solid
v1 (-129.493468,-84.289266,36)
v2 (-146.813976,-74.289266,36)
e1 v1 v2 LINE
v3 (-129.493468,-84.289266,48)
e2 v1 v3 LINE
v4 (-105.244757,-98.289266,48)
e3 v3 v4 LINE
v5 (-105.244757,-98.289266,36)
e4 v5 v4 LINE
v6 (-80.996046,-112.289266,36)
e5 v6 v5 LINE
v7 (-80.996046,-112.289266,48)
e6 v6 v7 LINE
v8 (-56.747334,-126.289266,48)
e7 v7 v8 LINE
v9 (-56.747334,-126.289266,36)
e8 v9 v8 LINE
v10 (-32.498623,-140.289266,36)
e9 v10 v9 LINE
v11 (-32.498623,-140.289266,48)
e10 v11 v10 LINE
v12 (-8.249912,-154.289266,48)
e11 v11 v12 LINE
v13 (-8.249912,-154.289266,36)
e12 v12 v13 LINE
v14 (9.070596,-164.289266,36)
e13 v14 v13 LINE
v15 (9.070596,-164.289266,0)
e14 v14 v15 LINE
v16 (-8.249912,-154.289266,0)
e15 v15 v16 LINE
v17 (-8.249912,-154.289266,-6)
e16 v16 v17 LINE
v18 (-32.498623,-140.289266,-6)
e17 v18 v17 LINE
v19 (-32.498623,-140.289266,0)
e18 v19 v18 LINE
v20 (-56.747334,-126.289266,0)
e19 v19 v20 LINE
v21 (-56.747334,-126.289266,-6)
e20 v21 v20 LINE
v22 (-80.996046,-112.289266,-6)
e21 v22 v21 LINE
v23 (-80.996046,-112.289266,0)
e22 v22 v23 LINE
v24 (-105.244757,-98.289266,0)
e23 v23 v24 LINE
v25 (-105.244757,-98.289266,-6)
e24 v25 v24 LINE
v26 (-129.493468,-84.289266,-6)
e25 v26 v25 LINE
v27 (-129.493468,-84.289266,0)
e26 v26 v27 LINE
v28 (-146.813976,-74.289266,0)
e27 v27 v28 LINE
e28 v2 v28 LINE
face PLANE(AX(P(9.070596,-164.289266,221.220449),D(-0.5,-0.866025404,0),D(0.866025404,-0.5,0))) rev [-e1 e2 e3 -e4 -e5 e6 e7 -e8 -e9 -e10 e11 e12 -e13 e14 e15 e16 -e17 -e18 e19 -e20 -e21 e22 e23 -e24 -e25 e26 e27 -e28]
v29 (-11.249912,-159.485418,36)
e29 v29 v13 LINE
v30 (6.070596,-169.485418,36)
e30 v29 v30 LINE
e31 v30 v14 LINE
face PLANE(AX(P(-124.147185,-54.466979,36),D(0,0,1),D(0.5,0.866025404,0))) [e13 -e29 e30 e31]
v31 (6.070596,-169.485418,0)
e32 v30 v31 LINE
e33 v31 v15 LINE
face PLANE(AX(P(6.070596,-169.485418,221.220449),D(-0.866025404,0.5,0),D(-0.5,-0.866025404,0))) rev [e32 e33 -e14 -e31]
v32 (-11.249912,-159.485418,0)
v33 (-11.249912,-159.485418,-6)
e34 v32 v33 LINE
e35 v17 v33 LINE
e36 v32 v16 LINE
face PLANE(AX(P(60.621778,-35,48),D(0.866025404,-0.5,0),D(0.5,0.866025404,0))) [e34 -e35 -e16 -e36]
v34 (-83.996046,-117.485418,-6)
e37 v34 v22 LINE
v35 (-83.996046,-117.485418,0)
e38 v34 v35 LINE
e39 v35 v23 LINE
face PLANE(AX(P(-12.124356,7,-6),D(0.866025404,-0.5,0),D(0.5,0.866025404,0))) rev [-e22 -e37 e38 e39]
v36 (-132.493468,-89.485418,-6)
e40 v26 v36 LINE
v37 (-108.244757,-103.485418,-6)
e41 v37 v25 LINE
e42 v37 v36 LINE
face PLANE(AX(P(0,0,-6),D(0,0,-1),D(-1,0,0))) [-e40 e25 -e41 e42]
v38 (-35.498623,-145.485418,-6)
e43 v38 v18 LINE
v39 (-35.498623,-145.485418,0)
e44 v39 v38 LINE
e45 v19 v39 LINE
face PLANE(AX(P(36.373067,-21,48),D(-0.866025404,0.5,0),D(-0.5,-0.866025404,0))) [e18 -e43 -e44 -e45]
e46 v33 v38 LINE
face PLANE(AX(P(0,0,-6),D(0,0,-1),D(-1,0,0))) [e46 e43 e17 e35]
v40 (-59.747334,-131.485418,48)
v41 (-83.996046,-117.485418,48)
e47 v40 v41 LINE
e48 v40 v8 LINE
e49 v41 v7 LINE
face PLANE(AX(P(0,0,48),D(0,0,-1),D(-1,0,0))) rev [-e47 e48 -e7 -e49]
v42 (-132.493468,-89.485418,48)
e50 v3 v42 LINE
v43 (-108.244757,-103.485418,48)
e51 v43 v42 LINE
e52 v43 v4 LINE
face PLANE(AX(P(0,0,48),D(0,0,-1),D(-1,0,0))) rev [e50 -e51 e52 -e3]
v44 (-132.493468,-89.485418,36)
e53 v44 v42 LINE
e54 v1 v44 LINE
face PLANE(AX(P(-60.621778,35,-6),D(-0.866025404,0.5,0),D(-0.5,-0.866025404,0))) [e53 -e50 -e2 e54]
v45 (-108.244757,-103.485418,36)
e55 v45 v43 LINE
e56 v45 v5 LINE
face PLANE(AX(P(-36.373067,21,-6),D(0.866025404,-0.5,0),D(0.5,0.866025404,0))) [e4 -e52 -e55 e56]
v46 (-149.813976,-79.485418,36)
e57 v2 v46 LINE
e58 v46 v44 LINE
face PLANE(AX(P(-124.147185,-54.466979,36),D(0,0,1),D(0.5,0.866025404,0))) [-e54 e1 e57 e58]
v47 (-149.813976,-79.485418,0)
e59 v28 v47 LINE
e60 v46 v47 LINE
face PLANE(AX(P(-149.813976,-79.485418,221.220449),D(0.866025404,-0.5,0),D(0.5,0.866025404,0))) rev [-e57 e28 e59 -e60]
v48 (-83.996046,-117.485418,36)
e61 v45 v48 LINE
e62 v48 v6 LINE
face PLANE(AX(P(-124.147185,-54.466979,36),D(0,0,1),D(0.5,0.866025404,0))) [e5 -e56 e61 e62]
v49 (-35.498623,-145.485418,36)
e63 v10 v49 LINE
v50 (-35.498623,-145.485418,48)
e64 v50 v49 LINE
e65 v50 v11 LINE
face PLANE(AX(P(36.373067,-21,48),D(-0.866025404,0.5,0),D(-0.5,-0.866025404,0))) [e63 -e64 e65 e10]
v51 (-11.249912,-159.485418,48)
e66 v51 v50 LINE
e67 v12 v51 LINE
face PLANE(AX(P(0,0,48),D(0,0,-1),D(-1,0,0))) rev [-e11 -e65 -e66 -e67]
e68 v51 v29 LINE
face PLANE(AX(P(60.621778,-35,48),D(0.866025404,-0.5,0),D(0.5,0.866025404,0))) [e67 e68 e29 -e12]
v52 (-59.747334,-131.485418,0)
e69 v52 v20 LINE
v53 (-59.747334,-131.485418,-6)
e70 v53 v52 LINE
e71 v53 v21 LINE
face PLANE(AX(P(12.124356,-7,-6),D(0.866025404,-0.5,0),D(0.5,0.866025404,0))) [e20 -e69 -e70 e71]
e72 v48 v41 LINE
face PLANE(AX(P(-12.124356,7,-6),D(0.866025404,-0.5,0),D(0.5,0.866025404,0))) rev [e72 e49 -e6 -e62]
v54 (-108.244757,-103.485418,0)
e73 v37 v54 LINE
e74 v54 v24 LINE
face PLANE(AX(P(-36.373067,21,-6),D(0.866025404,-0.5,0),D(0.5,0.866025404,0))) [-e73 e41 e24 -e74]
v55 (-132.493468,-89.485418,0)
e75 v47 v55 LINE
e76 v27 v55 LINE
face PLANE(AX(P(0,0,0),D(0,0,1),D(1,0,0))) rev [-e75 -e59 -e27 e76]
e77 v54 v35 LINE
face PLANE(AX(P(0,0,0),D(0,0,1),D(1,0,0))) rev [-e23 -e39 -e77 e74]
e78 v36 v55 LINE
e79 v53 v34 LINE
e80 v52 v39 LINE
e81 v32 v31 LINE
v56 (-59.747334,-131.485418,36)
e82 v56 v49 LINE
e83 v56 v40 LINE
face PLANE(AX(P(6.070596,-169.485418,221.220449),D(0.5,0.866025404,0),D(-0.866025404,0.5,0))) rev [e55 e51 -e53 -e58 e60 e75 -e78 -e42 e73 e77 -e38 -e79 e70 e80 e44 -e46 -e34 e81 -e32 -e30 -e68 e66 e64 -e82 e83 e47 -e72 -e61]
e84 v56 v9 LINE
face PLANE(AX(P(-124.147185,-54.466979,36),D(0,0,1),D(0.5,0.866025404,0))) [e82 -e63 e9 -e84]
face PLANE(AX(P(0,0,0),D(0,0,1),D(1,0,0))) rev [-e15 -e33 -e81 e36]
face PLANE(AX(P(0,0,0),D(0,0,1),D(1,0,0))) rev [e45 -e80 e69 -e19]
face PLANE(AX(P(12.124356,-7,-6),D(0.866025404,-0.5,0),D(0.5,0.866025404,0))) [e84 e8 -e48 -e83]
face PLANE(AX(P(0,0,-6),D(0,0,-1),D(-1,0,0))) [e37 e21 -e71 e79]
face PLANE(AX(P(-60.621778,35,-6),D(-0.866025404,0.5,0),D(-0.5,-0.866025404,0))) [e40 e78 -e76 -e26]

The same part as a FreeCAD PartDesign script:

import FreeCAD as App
import Part
import Sketcher
from FreeCAD import Vector
Q = App.Units.Quantity


def add_polygon(sketch, points):
    """Adds a closed chain of lines whose ends are joined by coincident constraints."""
    first, n = sketch.GeometryCount, len(points)
    for a, b in zip(points, points[1:] + points[:1]):
        sketch.addGeometry(Part.LineSegment(App.Vector(*a, 0), App.Vector(*b, 0)), False)
    for i in range(n):
        sketch.addConstraint(Sketcher.Constraint("Coincident", first + i, 2, first + (i + 1) % n, 1))

doc = App.newDocument("Part")
body = doc.addObject("PartDesign::Body", "Body")

# Sketch on XY plane
sketch1 = body.newObject("Sketcher::SketchObject", "Sketch")
sketch1.AttachmentSupport = (doc.getObject("XY_Plane"), [""])
sketch1.MapMode = "FlatFace"
add_polygon(sketch1, [(-149.813976, -79.485418), (6.070596, -169.485418), (9.070596, -164.289266), (-146.813976, -74.289266)])  # lines 0-3
sketch1.addConstraint([
    Sketcher.Constraint("Perpendicular", 0, 1),
    Sketcher.Constraint("Perpendicular", 1, 2),
    Sketcher.Constraint("Perpendicular", 2, 3),
    Sketcher.Constraint("Angle", 0, Q("-30 deg")),
    Sketcher.Constraint("Distance", 0, 180.0),
    Sketcher.Constraint("Distance", 1, 6.0),
    Sketcher.Constraint("DistanceY", 0, 2, -1, 1, 169.485418),
    Sketcher.Constraint("DistanceX", -1, 1, 0, 2, 6.070596),
])
pad1 = body.newObject("PartDesign::Pad", "Pad")
pad1.Profile = sketch1
pad1.Length = 36

# Sketch on XY plane
sketch2 = body.newObject("Sketcher::SketchObject", "Sketch001")
sketch2.AttachmentSupport = (doc.getObject("XY_Plane"), [""])
sketch2.MapMode = "FlatFace"
add_polygon(sketch2, [(-32.498623, -140.289266), (-8.249912, -154.289266), (-11.249912, -159.485418), (-35.498623, -145.485418)])  # lines 0-3
add_polygon(sketch2, [(-56.747334, -126.289266), (-59.747334, -131.485418), (-83.996046, -117.485418), (-80.996046, -112.289266)])  # lines 4-7
add_polygon(sketch2, [(-129.493468, -84.289266), (-105.244757, -98.289266), (-108.244757, -103.485418), (-132.493468, -89.485418)])  # lines 8-11
sketch2.addConstraint([
    Sketcher.Constraint("Perpendicular", 0, 1),
    Sketcher.Constraint("Perpendicular", 1, 2),
    Sketcher.Constraint("Perpendicular", 2, 3),
    Sketcher.Constraint("Parallel", 3, 4),
    Sketcher.Constraint("Perpendicular", 4, 5),
    Sketcher.Constraint("Perpendicular", 5, 6),
    Sketcher.Constraint("Perpendicular", 6, 7),
    Sketcher.Constraint("Parallel", 7, 8),
    Sketcher.Constraint("Perpendicular", 8, 9),
    Sketcher.Constraint("Perpendicular", 9, 10),
    Sketcher.Constraint("Perpendicular", 10, 11),
    Sketcher.Constraint("Equal", 3, 4),
    Sketcher.Constraint("Equal", 2, 5),
    Sketcher.Constraint("Equal", 7, 8),
    Sketcher.Constraint("Equal", 6, 9),
    Sketcher.Constraint("Angle", 0, Q("-30 deg")),
    Sketcher.Constraint("Distance", 0, 28.0),
    Sketcher.Constraint("Distance", 1, 6.0),
    Sketcher.Constraint("DistanceY", 2, 2, 4, 2, 14.0),
    Sketcher.Constraint("DistanceY", 6, 2, 8, 2, 14.0),
    Sketcher.Constraint("DistanceX", 0, 2, -1, 1, 8.249912),
    Sketcher.Constraint("DistanceY", 1, 2, -1, 1, 159.485418),
    Sketcher.Constraint("DistanceX", 10, 2, -1, 1, 132.493468),
    Sketcher.Constraint("DistanceX", 4, 2, 2, 2, 24.248711),
])
pad2 = body.newObject("PartDesign::Pad", "Pad001")
pad2.Profile = sketch2
pad2.Type = "TwoLengths"
pad2.Length = 6
pad2.Length2 = 48
pad2.Reversed = True

doc.recompute()
